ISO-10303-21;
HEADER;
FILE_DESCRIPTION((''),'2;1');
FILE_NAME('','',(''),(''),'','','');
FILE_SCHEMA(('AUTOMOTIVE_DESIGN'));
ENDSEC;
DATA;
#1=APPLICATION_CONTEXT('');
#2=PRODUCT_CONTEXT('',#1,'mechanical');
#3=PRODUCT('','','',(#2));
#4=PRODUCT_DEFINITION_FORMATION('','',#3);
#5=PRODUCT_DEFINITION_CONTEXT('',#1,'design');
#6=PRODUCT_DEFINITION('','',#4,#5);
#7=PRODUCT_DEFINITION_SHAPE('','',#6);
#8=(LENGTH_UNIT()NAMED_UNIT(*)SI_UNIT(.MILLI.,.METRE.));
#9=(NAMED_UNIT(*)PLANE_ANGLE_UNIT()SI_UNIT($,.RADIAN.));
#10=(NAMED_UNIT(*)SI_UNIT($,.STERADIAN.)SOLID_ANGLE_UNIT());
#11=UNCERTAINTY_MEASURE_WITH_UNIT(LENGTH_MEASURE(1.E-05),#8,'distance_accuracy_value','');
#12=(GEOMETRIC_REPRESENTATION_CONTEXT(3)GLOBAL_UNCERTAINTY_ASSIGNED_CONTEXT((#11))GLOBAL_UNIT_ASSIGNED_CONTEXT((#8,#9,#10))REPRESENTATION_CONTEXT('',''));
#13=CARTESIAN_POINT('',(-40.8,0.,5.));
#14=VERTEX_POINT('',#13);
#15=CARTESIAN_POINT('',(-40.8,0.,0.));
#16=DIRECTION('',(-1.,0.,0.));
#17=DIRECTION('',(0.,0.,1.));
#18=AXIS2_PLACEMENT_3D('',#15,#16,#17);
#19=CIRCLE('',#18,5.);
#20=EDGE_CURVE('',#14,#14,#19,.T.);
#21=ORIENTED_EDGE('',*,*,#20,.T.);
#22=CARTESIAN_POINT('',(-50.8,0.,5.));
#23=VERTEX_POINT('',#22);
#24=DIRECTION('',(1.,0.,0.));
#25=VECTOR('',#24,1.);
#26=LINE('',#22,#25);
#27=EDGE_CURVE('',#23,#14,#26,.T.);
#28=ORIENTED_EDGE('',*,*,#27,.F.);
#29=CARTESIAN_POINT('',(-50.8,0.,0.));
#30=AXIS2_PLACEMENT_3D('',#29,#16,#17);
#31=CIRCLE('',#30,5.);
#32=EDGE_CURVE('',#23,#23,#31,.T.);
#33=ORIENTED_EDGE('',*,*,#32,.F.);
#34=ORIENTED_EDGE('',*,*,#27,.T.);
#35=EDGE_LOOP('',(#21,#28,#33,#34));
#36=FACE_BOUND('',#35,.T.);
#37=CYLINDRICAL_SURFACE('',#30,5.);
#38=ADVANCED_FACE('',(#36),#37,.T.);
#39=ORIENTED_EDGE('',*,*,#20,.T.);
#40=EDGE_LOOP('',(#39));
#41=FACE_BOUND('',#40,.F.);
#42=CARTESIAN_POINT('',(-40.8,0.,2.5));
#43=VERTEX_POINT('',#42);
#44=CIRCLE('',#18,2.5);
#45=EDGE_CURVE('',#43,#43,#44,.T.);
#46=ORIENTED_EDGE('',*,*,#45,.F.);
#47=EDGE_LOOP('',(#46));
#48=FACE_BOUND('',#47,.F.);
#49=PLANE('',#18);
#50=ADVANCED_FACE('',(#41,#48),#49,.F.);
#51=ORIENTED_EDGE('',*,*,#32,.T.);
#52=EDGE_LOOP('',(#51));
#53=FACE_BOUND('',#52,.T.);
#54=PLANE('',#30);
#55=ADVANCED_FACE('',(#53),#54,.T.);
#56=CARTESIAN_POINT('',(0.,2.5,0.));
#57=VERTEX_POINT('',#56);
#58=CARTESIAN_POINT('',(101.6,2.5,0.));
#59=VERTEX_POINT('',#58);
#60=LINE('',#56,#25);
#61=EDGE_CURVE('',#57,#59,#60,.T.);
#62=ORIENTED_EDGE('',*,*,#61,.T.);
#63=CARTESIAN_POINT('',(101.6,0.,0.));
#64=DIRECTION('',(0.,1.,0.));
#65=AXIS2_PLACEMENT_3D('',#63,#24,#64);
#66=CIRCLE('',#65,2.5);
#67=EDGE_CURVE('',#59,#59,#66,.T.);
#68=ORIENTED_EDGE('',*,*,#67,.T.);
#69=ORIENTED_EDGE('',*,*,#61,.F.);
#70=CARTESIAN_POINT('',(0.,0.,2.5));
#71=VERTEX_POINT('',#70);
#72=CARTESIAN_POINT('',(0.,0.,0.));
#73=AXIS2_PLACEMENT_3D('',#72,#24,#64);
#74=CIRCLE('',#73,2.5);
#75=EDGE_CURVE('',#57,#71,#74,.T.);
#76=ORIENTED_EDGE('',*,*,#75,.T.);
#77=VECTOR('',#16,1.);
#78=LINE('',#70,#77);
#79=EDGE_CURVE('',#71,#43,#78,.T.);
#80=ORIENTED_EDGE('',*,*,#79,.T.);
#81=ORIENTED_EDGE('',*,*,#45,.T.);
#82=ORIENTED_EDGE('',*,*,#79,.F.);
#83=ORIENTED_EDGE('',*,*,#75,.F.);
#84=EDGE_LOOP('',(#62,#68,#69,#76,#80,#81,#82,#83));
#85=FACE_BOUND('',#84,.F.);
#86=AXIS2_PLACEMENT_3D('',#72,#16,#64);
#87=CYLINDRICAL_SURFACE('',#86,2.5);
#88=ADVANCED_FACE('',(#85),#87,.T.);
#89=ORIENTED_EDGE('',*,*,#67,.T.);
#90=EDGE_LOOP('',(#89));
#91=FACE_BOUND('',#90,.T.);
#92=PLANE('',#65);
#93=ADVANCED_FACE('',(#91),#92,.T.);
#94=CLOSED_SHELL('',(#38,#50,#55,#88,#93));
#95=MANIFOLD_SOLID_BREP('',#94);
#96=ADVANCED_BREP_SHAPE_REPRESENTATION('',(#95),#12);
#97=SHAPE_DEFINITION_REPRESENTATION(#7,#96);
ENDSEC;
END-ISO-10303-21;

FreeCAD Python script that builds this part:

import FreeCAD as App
import Part
import Sketcher

V = App.Vector
Q = App.Units.Quantity

doc = App.newDocument("Part")
params = doc.addObject("Spreadsheet::Sheet", "Params")
for row, (alias, value) in enumerate([
    ("pad1_length", "4 in"),
    ("pad2_length", "2 in"),
    ("pad3_length", "0.3937008 in"),
], start=1):
    params.set(f"A{row}", alias)
    params.set(f"B{row}", "=" + value)
    params.setAlias(f"B{row}", alias)

body = doc.addObject("PartDesign::Body", "Body")

sketch1 = body.newObject("Sketcher::SketchObject", "Sketch")
sketch1.AttachmentSupport = (doc.getObject("YZ_Plane"), [""])
sketch1.MapMode = "FlatFace"
sketch1.addGeometry(Part.Circle(V(0, 0, 0), V(0, 0, 1), 2.5), False)
sketch1.addConstraint(Sketcher.Constraint("Coincident", 0, 3, -1, 1))
sketch1.addConstraint(Sketcher.Constraint("Diameter", 0, Q("5 mm")))
pad1 = body.newObject("PartDesign::Pad", "Pad")
pad1.Profile = sketch1
pad1.setExpression("Length", "Params.pad1_length")

sketch2 = body.newObject("Sketcher::SketchObject", "Sketch001")
sketch2.AttachmentSupport = (doc.getObject("YZ_Plane"), [""])
sketch2.MapMode = "FlatFace"
sketch2.addGeometry(Part.Circle(V(0, 0, 0), V(0, 0, 1), 2.5), False)
sketch2.addConstraint(Sketcher.Constraint("Coincident", 0, 3, -1, 1))
sketch2.addConstraint(Sketcher.Constraint("Diameter", 0, Q("5 mm")))
pad2 = body.newObject("PartDesign::Pad", "Pad001")
pad2.Profile = sketch2
pad2.setExpression("Length", "Params.pad2_length")
pad2.Reversed = True

sketch3 = body.newObject("Sketcher::SketchObject", "Sketch002")
sketch3.AttachmentSupport = (doc.getObject("YZ_Plane"), [""])
sketch3.MapMode = "FlatFace"
sketch3.AttachmentOffset = App.Placement(V(0, 0, -2 * 25.4), App.Rotation())
sketch3.addGeometry(Part.Circle(V(0, 0, 0), V(0, 0, 1), 5), False)
sketch3.addConstraint(Sketcher.Constraint("Coincident", 0, 3, -1, 1))
sketch3.addConstraint(Sketcher.Constraint("Diameter", 0, Q("0.3937 in")))
pad3 = body.newObject("PartDesign::Pad", "Pad002")
pad3.Profile = sketch3
pad3.setExpression("Length", "Params.pad3_length")

doc.recompute()
